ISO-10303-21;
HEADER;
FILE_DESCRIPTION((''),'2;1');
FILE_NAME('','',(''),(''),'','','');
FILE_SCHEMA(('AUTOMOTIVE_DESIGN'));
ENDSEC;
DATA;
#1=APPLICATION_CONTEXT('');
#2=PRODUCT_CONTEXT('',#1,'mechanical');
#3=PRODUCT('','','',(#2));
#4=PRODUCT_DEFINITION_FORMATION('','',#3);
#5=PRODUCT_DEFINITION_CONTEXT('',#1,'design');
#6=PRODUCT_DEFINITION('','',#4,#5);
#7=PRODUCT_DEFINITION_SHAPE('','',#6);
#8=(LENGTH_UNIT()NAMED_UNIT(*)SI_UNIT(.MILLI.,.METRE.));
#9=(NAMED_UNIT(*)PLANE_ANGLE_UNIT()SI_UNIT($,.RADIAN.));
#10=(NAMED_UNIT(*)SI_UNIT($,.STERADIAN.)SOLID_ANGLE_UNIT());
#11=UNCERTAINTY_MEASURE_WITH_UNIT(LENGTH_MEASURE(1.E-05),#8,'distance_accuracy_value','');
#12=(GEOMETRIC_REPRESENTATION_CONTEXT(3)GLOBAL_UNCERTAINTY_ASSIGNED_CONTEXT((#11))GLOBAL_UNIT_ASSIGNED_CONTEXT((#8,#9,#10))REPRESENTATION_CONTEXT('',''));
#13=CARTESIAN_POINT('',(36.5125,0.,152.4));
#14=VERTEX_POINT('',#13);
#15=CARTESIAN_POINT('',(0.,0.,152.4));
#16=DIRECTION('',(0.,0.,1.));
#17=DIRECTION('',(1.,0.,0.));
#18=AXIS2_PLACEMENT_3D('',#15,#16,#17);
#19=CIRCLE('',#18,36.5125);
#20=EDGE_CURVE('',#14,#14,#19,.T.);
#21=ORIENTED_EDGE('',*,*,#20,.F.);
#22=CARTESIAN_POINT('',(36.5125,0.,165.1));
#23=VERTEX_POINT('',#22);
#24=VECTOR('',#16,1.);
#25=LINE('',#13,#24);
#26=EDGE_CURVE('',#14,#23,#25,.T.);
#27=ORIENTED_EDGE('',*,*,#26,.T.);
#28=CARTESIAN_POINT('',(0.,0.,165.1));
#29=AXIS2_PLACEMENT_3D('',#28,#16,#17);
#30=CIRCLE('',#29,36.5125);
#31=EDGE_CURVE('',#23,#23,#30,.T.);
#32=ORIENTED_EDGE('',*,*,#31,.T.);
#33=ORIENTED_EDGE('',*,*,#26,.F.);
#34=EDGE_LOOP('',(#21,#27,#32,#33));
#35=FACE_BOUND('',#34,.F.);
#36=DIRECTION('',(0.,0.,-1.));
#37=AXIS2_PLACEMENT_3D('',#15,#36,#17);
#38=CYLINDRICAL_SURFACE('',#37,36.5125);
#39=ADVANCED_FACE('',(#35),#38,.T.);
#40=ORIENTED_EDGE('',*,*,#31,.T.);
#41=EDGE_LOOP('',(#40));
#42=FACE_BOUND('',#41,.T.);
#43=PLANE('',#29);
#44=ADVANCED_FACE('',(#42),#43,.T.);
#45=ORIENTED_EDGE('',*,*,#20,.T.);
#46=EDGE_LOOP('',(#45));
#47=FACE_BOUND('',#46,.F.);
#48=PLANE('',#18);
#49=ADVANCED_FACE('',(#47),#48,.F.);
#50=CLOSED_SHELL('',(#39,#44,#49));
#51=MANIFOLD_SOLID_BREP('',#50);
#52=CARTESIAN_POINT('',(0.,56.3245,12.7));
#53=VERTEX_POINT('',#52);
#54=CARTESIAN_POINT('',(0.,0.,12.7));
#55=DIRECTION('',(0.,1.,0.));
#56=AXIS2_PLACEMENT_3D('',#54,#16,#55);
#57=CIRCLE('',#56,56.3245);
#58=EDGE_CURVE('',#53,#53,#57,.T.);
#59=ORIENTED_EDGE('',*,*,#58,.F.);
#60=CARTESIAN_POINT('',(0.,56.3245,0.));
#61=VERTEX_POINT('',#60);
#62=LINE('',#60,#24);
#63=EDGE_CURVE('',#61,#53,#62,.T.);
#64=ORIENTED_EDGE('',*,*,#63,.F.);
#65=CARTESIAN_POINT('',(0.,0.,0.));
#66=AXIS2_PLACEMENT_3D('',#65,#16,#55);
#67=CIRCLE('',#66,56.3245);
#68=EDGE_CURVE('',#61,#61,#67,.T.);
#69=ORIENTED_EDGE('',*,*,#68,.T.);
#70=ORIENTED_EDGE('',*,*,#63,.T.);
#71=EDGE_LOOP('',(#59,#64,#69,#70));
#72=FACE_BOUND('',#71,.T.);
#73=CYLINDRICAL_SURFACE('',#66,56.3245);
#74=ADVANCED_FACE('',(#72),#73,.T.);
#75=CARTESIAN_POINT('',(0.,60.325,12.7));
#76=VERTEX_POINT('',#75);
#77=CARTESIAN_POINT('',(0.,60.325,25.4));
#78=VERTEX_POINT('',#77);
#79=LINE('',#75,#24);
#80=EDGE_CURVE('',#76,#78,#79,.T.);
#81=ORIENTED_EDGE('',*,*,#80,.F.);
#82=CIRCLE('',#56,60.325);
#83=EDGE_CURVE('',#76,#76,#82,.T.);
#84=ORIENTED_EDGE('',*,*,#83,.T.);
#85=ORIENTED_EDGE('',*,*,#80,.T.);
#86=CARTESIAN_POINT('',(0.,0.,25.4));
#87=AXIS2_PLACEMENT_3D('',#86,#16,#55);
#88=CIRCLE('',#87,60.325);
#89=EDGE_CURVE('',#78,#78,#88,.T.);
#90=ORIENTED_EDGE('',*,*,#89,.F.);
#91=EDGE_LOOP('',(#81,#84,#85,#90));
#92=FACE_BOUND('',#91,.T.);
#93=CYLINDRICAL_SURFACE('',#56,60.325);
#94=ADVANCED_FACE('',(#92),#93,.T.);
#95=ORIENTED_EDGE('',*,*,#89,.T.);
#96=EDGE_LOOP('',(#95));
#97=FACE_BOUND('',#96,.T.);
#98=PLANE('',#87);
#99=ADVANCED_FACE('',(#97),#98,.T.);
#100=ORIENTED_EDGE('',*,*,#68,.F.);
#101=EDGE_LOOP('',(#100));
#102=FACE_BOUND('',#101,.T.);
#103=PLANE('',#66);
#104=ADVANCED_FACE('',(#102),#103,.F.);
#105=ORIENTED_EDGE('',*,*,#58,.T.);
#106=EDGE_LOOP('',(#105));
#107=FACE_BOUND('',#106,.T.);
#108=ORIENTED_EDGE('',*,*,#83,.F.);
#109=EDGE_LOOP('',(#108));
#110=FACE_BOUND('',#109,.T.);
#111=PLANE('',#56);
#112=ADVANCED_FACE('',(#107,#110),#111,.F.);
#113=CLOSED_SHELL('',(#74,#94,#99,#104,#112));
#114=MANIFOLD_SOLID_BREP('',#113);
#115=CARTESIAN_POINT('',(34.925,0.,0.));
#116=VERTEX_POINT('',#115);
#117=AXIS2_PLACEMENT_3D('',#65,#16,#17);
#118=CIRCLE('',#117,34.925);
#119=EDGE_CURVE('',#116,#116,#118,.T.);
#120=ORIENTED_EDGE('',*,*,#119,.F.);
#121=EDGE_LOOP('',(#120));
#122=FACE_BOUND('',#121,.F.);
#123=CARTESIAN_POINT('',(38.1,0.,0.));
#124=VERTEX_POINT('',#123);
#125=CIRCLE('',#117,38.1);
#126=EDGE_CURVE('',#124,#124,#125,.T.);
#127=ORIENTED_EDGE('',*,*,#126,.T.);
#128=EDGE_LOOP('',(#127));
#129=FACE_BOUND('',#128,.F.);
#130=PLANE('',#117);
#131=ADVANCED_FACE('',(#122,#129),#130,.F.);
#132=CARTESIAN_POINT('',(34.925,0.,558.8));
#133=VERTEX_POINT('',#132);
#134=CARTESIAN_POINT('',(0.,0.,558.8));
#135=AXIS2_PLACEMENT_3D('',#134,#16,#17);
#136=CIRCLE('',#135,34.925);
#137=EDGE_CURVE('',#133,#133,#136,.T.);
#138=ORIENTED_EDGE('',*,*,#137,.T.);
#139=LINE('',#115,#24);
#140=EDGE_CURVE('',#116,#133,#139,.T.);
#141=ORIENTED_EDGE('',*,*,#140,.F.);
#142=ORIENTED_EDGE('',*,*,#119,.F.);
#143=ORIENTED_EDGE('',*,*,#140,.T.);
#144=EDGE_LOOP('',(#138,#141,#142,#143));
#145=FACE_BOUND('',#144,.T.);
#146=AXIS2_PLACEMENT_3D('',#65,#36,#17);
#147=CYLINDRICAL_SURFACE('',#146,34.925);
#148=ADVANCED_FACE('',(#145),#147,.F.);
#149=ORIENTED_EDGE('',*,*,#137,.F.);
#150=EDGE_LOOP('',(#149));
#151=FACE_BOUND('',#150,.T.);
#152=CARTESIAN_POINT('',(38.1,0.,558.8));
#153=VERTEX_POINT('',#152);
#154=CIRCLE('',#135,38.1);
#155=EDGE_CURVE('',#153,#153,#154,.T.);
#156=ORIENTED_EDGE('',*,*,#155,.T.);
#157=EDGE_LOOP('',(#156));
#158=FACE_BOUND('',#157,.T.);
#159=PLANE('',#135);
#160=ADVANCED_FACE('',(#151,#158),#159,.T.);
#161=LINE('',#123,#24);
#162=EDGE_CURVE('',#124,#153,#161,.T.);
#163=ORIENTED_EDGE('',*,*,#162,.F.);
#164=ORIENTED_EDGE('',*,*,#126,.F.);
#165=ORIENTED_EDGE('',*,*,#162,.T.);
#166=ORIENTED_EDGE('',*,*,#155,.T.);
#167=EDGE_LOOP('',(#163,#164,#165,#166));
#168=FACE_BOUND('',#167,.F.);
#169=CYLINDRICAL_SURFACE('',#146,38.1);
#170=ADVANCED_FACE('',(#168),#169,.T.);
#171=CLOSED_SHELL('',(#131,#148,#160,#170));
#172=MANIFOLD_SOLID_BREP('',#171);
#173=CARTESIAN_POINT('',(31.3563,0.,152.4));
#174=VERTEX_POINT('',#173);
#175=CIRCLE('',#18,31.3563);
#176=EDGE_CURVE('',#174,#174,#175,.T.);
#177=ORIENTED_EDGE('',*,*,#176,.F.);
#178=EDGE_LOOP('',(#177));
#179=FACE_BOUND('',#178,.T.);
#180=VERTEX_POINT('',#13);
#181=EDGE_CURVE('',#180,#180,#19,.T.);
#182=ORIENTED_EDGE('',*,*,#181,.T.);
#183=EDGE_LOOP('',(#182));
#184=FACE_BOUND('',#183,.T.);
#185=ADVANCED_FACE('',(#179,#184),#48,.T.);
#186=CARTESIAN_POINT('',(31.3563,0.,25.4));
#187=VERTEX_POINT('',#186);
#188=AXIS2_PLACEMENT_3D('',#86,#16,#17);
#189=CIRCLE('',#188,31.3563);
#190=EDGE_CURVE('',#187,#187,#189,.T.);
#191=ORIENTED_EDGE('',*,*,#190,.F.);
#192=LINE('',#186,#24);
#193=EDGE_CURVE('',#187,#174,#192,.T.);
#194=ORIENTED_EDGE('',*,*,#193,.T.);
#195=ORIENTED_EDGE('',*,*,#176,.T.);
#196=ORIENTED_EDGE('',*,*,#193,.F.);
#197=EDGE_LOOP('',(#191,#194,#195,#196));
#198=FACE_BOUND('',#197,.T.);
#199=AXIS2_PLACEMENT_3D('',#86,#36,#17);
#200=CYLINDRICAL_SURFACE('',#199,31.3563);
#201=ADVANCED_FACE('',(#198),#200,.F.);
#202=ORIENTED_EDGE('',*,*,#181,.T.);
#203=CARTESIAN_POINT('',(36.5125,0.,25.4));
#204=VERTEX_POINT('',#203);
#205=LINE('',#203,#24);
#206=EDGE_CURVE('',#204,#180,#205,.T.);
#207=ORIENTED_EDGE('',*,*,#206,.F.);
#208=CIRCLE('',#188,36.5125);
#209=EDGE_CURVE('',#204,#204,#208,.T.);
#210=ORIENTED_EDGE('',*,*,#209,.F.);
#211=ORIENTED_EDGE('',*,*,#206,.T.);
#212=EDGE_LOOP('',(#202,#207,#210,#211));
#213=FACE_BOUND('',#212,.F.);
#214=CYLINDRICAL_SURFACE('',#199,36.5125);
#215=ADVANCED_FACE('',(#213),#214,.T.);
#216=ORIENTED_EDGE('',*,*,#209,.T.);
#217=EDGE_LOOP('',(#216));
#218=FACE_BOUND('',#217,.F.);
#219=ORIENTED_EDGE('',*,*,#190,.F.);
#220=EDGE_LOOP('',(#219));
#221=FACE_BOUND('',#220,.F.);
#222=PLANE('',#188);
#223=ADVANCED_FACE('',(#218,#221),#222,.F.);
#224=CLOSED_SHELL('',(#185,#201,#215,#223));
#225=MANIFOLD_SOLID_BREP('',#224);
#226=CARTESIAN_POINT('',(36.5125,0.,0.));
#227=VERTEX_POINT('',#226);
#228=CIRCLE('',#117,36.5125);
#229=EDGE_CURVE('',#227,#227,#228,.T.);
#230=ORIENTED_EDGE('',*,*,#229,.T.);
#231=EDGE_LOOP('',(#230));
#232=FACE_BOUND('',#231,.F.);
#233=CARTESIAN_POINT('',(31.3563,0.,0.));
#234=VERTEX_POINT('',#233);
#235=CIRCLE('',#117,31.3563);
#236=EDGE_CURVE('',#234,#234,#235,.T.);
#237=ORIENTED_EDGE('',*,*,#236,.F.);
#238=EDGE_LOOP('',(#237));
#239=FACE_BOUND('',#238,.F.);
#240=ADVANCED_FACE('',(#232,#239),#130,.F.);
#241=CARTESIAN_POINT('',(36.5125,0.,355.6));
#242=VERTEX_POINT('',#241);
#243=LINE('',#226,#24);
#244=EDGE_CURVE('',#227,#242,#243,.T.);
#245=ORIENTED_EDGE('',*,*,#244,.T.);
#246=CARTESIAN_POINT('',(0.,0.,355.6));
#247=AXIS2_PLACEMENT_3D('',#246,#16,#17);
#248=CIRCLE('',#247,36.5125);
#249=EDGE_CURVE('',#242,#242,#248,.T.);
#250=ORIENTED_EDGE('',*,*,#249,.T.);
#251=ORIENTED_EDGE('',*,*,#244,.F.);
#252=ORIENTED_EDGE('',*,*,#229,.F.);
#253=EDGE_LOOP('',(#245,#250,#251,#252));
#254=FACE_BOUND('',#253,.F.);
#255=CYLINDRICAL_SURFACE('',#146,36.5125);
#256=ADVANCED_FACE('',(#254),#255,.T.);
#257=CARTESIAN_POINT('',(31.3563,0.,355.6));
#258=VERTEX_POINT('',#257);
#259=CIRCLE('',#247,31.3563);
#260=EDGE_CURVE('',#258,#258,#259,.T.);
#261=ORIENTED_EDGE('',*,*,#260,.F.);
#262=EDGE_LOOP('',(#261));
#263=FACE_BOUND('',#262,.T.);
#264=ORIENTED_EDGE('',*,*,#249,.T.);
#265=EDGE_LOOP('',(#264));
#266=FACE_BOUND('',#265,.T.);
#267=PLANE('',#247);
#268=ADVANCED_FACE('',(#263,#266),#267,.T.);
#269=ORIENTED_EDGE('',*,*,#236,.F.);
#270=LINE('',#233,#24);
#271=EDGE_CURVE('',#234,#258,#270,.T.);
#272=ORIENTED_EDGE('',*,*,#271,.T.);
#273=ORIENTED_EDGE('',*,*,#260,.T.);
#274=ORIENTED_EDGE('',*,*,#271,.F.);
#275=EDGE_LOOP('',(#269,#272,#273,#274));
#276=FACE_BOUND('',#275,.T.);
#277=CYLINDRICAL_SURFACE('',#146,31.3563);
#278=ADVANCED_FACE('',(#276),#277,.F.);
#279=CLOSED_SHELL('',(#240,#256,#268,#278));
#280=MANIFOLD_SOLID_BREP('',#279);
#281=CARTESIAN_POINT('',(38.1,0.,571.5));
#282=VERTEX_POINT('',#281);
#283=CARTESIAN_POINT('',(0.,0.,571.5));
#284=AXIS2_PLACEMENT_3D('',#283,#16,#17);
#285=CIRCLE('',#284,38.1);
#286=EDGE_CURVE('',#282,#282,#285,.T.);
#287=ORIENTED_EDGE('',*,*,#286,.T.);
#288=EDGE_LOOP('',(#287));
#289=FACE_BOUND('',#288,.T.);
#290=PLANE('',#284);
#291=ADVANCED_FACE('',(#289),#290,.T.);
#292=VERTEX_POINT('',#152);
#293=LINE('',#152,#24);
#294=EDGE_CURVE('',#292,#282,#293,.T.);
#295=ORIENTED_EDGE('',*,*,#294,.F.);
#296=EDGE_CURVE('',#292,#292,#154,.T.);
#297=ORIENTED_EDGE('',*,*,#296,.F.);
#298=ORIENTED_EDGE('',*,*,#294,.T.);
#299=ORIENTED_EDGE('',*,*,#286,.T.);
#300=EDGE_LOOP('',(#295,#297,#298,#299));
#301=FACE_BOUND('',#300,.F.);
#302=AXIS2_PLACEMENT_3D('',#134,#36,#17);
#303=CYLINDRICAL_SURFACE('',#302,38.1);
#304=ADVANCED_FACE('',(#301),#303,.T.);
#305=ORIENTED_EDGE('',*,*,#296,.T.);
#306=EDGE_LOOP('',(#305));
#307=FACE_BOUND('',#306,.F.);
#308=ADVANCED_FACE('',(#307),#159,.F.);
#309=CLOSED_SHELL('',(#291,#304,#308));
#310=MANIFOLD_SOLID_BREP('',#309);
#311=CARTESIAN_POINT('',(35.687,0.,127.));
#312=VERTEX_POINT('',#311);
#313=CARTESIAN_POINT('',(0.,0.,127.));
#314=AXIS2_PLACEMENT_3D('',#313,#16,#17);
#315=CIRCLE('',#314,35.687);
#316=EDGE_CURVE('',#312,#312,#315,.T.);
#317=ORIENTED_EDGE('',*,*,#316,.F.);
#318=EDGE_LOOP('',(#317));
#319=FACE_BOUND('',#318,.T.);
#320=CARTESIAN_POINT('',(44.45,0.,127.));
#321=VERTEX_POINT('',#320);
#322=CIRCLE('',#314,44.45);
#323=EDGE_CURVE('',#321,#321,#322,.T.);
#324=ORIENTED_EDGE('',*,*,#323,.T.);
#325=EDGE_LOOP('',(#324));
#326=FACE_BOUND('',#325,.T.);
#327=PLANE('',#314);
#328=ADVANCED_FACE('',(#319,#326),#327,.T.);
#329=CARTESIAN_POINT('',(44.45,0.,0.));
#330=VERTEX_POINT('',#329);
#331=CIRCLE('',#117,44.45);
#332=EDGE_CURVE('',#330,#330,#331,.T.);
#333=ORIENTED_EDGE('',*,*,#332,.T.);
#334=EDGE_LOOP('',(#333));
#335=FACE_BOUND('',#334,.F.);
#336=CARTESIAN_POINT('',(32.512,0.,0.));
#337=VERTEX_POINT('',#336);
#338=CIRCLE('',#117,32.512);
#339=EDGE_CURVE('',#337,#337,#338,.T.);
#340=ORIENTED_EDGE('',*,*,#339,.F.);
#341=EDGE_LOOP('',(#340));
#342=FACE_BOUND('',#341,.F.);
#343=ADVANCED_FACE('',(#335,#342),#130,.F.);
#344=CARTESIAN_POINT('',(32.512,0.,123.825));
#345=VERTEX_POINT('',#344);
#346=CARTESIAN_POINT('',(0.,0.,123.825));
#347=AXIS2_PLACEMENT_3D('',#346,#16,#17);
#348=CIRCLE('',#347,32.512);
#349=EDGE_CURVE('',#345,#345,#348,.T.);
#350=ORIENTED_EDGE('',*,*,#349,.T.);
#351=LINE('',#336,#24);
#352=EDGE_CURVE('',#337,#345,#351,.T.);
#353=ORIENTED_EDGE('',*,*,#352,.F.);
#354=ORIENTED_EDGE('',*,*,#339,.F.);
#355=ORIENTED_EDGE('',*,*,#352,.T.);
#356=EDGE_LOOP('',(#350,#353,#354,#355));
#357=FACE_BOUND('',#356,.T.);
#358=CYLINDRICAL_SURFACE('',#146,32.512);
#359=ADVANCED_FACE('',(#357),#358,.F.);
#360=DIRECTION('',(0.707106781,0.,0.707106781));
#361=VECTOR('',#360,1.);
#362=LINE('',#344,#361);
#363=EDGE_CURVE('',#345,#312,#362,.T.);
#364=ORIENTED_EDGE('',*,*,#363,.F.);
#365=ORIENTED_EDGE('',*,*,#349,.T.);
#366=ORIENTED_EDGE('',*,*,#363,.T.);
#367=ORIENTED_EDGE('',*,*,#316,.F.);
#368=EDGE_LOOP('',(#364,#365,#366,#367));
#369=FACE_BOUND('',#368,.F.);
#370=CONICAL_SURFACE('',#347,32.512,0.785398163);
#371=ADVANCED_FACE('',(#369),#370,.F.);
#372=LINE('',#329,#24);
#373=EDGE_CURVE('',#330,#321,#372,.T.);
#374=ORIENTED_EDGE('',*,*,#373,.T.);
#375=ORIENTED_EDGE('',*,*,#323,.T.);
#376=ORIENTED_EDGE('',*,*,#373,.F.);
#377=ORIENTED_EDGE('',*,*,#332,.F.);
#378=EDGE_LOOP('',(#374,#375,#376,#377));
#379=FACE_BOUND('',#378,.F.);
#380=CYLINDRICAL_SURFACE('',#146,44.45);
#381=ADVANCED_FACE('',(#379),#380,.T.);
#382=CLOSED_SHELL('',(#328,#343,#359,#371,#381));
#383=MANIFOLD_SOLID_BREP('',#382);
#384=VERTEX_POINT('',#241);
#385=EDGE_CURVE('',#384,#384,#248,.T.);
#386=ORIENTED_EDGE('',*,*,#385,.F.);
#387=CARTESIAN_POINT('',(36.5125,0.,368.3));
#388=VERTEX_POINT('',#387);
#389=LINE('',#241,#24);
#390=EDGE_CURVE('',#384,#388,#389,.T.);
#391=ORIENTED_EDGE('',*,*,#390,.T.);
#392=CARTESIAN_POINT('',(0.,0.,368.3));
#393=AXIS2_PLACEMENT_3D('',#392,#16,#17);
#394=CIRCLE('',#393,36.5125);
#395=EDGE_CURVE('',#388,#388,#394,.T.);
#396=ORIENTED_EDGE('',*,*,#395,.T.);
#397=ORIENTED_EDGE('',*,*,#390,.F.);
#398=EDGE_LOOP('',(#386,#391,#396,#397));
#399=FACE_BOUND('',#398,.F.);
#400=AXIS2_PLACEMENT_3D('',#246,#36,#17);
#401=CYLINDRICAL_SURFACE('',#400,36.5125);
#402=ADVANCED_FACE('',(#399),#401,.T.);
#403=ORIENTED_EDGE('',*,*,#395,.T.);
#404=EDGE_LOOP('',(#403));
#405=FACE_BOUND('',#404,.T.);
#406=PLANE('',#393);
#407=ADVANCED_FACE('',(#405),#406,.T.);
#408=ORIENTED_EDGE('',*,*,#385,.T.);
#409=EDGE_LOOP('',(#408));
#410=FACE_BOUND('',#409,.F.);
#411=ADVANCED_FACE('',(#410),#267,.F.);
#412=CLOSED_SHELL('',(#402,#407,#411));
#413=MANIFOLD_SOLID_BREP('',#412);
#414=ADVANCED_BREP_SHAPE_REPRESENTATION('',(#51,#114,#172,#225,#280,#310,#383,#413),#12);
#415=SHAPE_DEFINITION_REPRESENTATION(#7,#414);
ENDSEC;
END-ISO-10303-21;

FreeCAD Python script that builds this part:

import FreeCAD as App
import Part
import Sketcher
from FreeCAD import Vector
Q = App.Units.Quantity


def edges_at(feature, points):
    """Names of the edges that pass closest to the given points."""
    edges = feature.Shape.Edges
    near = lambda p: min(range(len(edges)), key=lambda i: edges[i].distToShape(Part.Vertex(*p))[0])
    return sorted({f"Edge{near(p) + 1}" for p in points})


def add_polygon(sketch, points):
    """Adds a closed chain of lines whose ends are joined by coincident constraints."""
    first, n = sketch.GeometryCount, len(points)
    for a, b in zip(points, points[1:] + points[:1]):
        sketch.addGeometry(Part.LineSegment(App.Vector(*a, 0), App.Vector(*b, 0)), False)
    for i in range(n):
        sketch.addConstraint(Sketcher.Constraint("Coincident", first + i, 2, first + (i + 1) % n, 1))

doc = App.newDocument("Part")
body = doc.addObject("PartDesign::Body", "Body")

sketch1 = body.newObject("Sketcher::SketchObject", "Sketch")
sketch1.AttachmentSupport = (doc.getObject("XY_Plane"), [""])
sketch1.MapMode = "FlatFace"
sketch1.addGeometry(Part.Circle(Vector(0, 0, 0), Vector(0, 0, 1), 44), False)
sketch1.addGeometry(Part.Circle(Vector(0, 0, 0), Vector(0, 0, 1), 33), False)
sketch1.addConstraint(Sketcher.Constraint("Coincident", 0, 3, -1, 1))
sketch1.addConstraint(Sketcher.Constraint("Coincident", 1, 3, -1, 1))
sketch1.addConstraint(Sketcher.Constraint("Diameter", 0, Q("3.5 in")))
sketch1.addConstraint(Sketcher.Constraint("Diameter", 1, Q("2.56 in")))
pad1 = body.newObject("PartDesign::Pad", "Pad")
pad1.Profile = sketch1
pad1.Length = Q("5 in")
doc.recompute()

chamfer = body.newObject("PartDesign::Chamfer", "Chamfer")
chamfer.Base = (pad1, edges_at(pad1, [(-32.512, 0, 127)]))
chamfer.Size = Q("0.125 in")
body2 = doc.addObject("PartDesign::Body", "Body001")

sketch2 = body2.newObject("Sketcher::SketchObject", "Sketch001")
sketch2.AttachmentSupport = (doc.getObject("XY_Plane001"), [""])
sketch2.MapMode = "FlatFace"
sketch2.addGeometry(Part.Circle(Vector(0, 0, 0), Vector(0, 0, 1), 37), False)
sketch2.addGeometry(Part.Circle(Vector(0, 0, 0), Vector(0, 0, 1), 31), False)
sketch2.addConstraint(Sketcher.Constraint("Coincident", 0, 3, -1, 1))
sketch2.addConstraint(Sketcher.Constraint("Coincident", 1, 3, -1, 1))
sketch2.addConstraint(Sketcher.Constraint("Diameter", 0, Q("2.875 in")))
sketch2.addConstraint(Sketcher.Constraint("Diameter", 1, Q("2.469 in")))
pad2 = body2.newObject("PartDesign::Pad", "Pad001")
pad2.Profile = sketch2
pad2.Length = Q("14 in")
body3 = doc.addObject("PartDesign::Body", "Body002")

sketch3 = body3.newObject("Sketcher::SketchObject", "Sketch002")
sketch3.AttachmentSupport = (doc.getObject("XY_Plane002"), [""])
sketch3.MapMode = "FlatFace"
sketch3.AttachmentOffset = App.Placement(Vector(0, 0, 14 * 25.4), App.Rotation())
sketch3.addGeometry(Part.Circle(Vector(0, 0, 0), Vector(0, 0, 1), 37), False)
sketch3.addConstraint(Sketcher.Constraint("Coincident", 0, 3, -1, 1))
sketch3.addConstraint(Sketcher.Constraint("Diameter", 0, Q("2.875 in")))
pad3 = body3.newObject("PartDesign::Pad", "Pad002")
pad3.Profile = sketch3
pad3.Length = Q("0.5 in")
body4 = doc.addObject("PartDesign::Body", "Body003")

sketch4 = body4.newObject("Sketcher::SketchObject", "Sketch003")
sketch4.AttachmentSupport = (doc.getObject("XY_Plane003"), [""])
sketch4.MapMode = "FlatFace"
sketch4.addGeometry(Part.Circle(Vector(0, 0, 0), Vector(0, 0, 1), 38), False)
sketch4.addGeometry(Part.Circle(Vector(0, 0, 0), Vector(0, 0, 1), 35), False)
sketch4.addConstraint(Sketcher.Constraint("Coincident", 0, 3, -1, 1))
sketch4.addConstraint(Sketcher.Constraint("Coincident", 1, 3, -1, 1))
sketch4.addConstraint(Sketcher.Constraint("Diameter", 0, Q("3 in")))
sketch4.addConstraint(Sketcher.Constraint("Diameter", 1, Q("2.75 in")))
pad4 = body4.newObject("PartDesign::Pad", "Pad003")
pad4.Profile = sketch4
pad4.Length = Q("22 in")
body5 = doc.addObject("PartDesign::Body", "Body004")

sketch5 = body5.newObject("Sketcher::SketchObject", "Sketch004")
sketch5.AttachmentSupport = (doc.getObject("XY_Plane004"), [""])
sketch5.MapMode = "FlatFace"
sketch5.AttachmentOffset = App.Placement(Vector(0, 0, 22 * 25.4), App.Rotation())
sketch5.addGeometry(Part.Circle(Vector(0, 0, 0), Vector(0, 0, 1), 38), False)
sketch5.addConstraint(Sketcher.Constraint("Coincident", 0, 3, -1, 1))
sketch5.addConstraint(Sketcher.Constraint("Diameter", 0, Q("3 in")))
pad5 = body5.newObject("PartDesign::Pad", "Pad004")
pad5.Profile = sketch5
pad5.Length = Q("0.5 in")
body6 = doc.addObject("PartDesign::Body", "Body005")

sketch6 = body6.newObject("Sketcher::SketchObject", "Sketch005")
sketch6.AttachmentSupport = (doc.getObject("YZ_Plane005"), [""])
sketch6.MapMode = "FlatFace"
add_polygon(sketch6, [(60.3, 25.4), (0, 25.4), (0, 0), (56.3, 0), (56.3, 12.7), (60.3, 12.7)])
sketch6.addConstraint(Sketcher.Constraint("Horizontal", 0))
sketch6.addConstraint(Sketcher.Constraint("Vertical", 1))
sketch6.addConstraint(Sketcher.Constraint("Horizontal", 2))
sketch6.addConstraint(Sketcher.Constraint("Vertical", 3))
sketch6.addConstraint(Sketcher.Constraint("Horizontal", 4))
sketch6.addConstraint(Sketcher.Constraint("Vertical", 5))
sketch6.addConstraint(Sketcher.Constraint("Coincident", 1, 2, -1, 1))
sketch6.addConstraint(Sketcher.Constraint("Equal", 3, 5))
sketch6.addConstraint(Sketcher.Constraint("DistanceY", 1, 2, 1, 1, Q("1 in")))
sketch6.addConstraint(Sketcher.Constraint("DistanceX", 0, 2, 0, 1, Q("2.375 in")))
sketch6.addConstraint(Sketcher.Constraint("DistanceX", 2, 1, 2, 2, Q("2.2175 in")))
revolution = body6.newObject("PartDesign::Revolution", "Revolution")
revolution.Profile = sketch6
revolution.ReferenceAxis = (sketch6, ["V_Axis"])
revolution.Angle = 360
body7 = doc.addObject("PartDesign::Body", "Body006")

sketch7 = body7.newObject("Sketcher::SketchObject", "Sketch006")
sketch7.AttachmentSupport = (doc.getObject("XY_Plane006"), [""])
sketch7.MapMode = "FlatFace"
sketch7.AttachmentOffset = App.Placement(Vector(0, 0, 1 * 25.4), App.Rotation())
sketch7.addGeometry(Part.Circle(Vector(0, 0, 0), Vector(0, 0, 1), 37), False)
sketch7.addGeometry(Part.Circle(Vector(0, 0, 0), Vector(0, 0, 1), 31), False)
sketch7.addConstraint(Sketcher.Constraint("Coincident", 0, 3, -1, 1))
sketch7.addConstraint(Sketcher.Constraint("Coincident", 1, 3, -1, 1))
sketch7.addConstraint(Sketcher.Constraint("Diameter", 0, Q("2.875 in")))
sketch7.addConstraint(Sketcher.Constraint("Diameter", 1, Q("2.469 in")))
pad6 = body7.newObject("PartDesign::Pad", "Pad005")
pad6.Profile = sketch7
pad6.Length = Q("5 in")
body8 = doc.addObject("PartDesign::Body", "Body007")

sketch8 = body8.newObject("Sketcher::SketchObject", "Sketch007")
sketch8.AttachmentSupport = (doc.getObject("XY_Plane007"), [""])
sketch8.MapMode = "FlatFace"
sketch8.AttachmentOffset = App.Placement(Vector(0, 0, 6 * 25.4), App.Rotation())
sketch8.addGeometry(Part.Circle(Vector(0, 0, 0), Vector(0, 0, 1), 37), False)
sketch8.addConstraint(Sketcher.Constraint("Coincident", 0, 3, -1, 1))
sketch8.addConstraint(Sketcher.Constraint("Diameter", 0, Q("2.875 in")))
pad7 = body8.newObject("PartDesign::Pad", "Pad006")
pad7.Profile = sketch8
pad7.Length = Q("0.5 in")

doc.recompute()
